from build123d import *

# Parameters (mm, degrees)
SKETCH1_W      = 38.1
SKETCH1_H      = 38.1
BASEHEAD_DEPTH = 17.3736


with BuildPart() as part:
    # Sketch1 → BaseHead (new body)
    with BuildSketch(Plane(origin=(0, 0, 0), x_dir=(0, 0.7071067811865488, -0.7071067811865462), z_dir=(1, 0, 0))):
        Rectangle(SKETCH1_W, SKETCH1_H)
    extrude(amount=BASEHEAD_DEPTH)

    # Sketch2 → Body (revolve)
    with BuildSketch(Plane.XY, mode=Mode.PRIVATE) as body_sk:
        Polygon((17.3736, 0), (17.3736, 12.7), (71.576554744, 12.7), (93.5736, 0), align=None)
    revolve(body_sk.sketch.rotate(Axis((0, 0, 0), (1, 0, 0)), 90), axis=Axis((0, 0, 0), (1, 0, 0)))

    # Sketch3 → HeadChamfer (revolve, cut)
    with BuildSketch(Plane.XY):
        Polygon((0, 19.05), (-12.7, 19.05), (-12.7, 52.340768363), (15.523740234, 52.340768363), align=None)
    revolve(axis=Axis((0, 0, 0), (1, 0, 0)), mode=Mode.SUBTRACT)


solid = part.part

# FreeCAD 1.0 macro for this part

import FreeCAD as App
import Part
import Sketcher
Q = App.Units.Quantity

doc = App.newDocument("Part")
params = doc.addObject("Spreadsheet::Sheet", "Params")
for row, (alias, value) in enumerate([
    ("sketch1_length", "1.5 in"),
    ("pad1_length", "0.684 in"),
    ("sketch2_width", "3 in"),
    ("sketch2_length", "1 in"),
    ("sketch2_height", "0.5 in"),
    ("revolution_angle", "360 deg"),
    ("sketch3_width", "0.5 in"),
    ("groove_angle", "360 deg"),
], start=1):
    params.set(f"A{row}", alias)
    params.set(f"B{row}", "=" + value)
    params.setAlias(f"B{row}", alias)

body = doc.addObject("PartDesign::Body", "Body")

# Sketch on YZ plane
sketch1 = doc.addObject("Sketcher::SketchObject", "Sketch")
body.addObject(sketch1)
sketch1.AttachmentSupport = (doc.YZ_Plane, [""])
sketch1.MapMode = "FlatFace"
sketch1.addGeometry([
    Part.LineSegment(App.Vector(0, 27, 0), App.Vector(-27, 0, 0)),
    Part.LineSegment(App.Vector(-27, 0, 0), App.Vector(0, -27, 0)),
    Part.LineSegment(App.Vector(0, -27, 0), App.Vector(27, 0, 0)),
    Part.LineSegment(App.Vector(27, 0, 0), App.Vector(0, 27, 0)),
], False)
sketch1.addConstraint([
    Sketcher.Constraint("Coincident", 0, 2, 1, 1),
    Sketcher.Constraint("Coincident", 1, 2, 2, 1),
    Sketcher.Constraint("Coincident", 2, 2, 3, 1),
    Sketcher.Constraint("Coincident", 3, 2, 0, 1),
    Sketcher.Constraint("Symmetric", 0, 2, 2, 2, -1, 1),
    Sketcher.Constraint("Symmetric", 1, 2, 3, 2, -1, 1),
    Sketcher.Constraint("PointOnObject", 0, 2, -1),
    Sketcher.Constraint("PointOnObject", 1, 2, -2),
    Sketcher.Constraint("Perpendicular", 0, 1),
    Sketcher.Constraint("Distance", 0, Q("1.5 in")),
])
sketch1.setExpression("Constraints[9]", "Params.sketch1_length")
pad1 = doc.addObject("PartDesign::Pad", "Pad")
body.addObject(pad1)
pad1.Profile = sketch1
pad1.setExpression("Length", "Params.pad1_length")

# Sketch on XY plane
sketch2 = doc.addObject("Sketcher::SketchObject", "Sketch001")
body.addObject(sketch2)
sketch2.AttachmentSupport = (doc.XY_Plane, [""])
sketch2.MapMode = "FlatFace"
sketch2.addGeometry([
    Part.LineSegment(App.Vector(17, 13, 0), App.Vector(17, 0, 0)),
    Part.LineSegment(App.Vector(17, 0, 0), App.Vector(94, 0, 0)),
    Part.LineSegment(App.Vector(94, 0, 0), App.Vector(72, 13, 0)),
    Part.LineSegment(App.Vector(72, 13, 0), App.Vector(17, 13, 0)),
], False)
sketch2.addConstraint([
    Sketcher.Constraint("Coincident", 0, 2, 1, 1),
    Sketcher.Constraint("Coincident", 1, 2, 2, 1),
    Sketcher.Constraint("Coincident", 2, 2, 3, 1),
    Sketcher.Constraint("Coincident", 3, 2, 0, 1),
    Sketcher.Constraint("Vertical", 0),
    Sketcher.Constraint("Horizontal", 1),
    Sketcher.Constraint("Horizontal", 3),
    Sketcher.Constraint("PointOnObject", 0, 2, -1),
    Sketcher.Constraint("DistanceX", 1, 1, 1, 2, Q("3 in")),
    Sketcher.Constraint("Distance", 2, Q("1 in")),
    Sketcher.Constraint("DistanceY", 0, 2, 0, 1, Q("0.5 in")),
    Sketcher.Constraint("DistanceX", -1, 1, 0, 2, Q("0.684 in")),
])
sketch2.setExpression("Constraints[8]", "Params.sketch2_width")
sketch2.setExpression("Constraints[9]", "Params.sketch2_length")
sketch2.setExpression("Constraints[10]", "Params.sketch2_height")
revolution = doc.addObject("PartDesign::Revolution", "Revolution")
body.addObject(revolution)
revolution.Profile = sketch2
revolution.ReferenceAxis = (sketch2, ["H_Axis"])
revolution.setExpression("Angle", "Params.revolution_angle")

# Sketch on XY plane
sketch3 = doc.addObject("Sketcher::SketchObject", "Sketch002")
body.addObject(sketch3)
sketch3.AttachmentSupport = (doc.XY_Plane, [""])
sketch3.MapMode = "FlatFace"
sketch3.addGeometry([
    Part.LineSegment(App.Vector(-13, 19, 0), App.Vector(0, 19, 0)),
    Part.LineSegment(App.Vector(0, 19, 0), App.Vector(16, 52, 0)),
    Part.LineSegment(App.Vector(16, 52, 0), App.Vector(-13, 52, 0)),
    Part.LineSegment(App.Vector(-13, 52, 0), App.Vector(-13, 19, 0)),
], False)
sketch3.addConstraint([
    Sketcher.Constraint("Coincident", 0, 2, 1, 1),
    Sketcher.Constraint("Coincident", 1, 2, 2, 1),
    Sketcher.Constraint("Coincident", 2, 2, 3, 1),
    Sketcher.Constraint("Coincident", 3, 2, 0, 1),
    Sketcher.Constraint("Horizontal", 0),
    Sketcher.Constraint("Horizontal", 2),
    Sketcher.Constraint("Vertical", 3),
    Sketcher.Constraint("PointOnObject", 0, 2, -2),
    Sketcher.Constraint("DistanceX", 0, 1, 0, 2, Q("0.5 in")),
    Sketcher.Constraint("Angle", 1, Q("65 deg")),
    Sketcher.Constraint("DistanceY", -1, 1, 0, 2, Q("0.75 in")),
    Sketcher.Constraint("Distance", 1, Q("36.732299 mm")),
])
sketch3.setExpression("Constraints[8]", "Params.sketch3_width")
groove = doc.addObject("PartDesign::Groove", "Groove")
body.addObject(groove)
groove.Profile = sketch3
groove.ReferenceAxis = (sketch3, ["H_Axis"])
groove.setExpression("Angle", "Params.groove_angle")

doc.recompute()
